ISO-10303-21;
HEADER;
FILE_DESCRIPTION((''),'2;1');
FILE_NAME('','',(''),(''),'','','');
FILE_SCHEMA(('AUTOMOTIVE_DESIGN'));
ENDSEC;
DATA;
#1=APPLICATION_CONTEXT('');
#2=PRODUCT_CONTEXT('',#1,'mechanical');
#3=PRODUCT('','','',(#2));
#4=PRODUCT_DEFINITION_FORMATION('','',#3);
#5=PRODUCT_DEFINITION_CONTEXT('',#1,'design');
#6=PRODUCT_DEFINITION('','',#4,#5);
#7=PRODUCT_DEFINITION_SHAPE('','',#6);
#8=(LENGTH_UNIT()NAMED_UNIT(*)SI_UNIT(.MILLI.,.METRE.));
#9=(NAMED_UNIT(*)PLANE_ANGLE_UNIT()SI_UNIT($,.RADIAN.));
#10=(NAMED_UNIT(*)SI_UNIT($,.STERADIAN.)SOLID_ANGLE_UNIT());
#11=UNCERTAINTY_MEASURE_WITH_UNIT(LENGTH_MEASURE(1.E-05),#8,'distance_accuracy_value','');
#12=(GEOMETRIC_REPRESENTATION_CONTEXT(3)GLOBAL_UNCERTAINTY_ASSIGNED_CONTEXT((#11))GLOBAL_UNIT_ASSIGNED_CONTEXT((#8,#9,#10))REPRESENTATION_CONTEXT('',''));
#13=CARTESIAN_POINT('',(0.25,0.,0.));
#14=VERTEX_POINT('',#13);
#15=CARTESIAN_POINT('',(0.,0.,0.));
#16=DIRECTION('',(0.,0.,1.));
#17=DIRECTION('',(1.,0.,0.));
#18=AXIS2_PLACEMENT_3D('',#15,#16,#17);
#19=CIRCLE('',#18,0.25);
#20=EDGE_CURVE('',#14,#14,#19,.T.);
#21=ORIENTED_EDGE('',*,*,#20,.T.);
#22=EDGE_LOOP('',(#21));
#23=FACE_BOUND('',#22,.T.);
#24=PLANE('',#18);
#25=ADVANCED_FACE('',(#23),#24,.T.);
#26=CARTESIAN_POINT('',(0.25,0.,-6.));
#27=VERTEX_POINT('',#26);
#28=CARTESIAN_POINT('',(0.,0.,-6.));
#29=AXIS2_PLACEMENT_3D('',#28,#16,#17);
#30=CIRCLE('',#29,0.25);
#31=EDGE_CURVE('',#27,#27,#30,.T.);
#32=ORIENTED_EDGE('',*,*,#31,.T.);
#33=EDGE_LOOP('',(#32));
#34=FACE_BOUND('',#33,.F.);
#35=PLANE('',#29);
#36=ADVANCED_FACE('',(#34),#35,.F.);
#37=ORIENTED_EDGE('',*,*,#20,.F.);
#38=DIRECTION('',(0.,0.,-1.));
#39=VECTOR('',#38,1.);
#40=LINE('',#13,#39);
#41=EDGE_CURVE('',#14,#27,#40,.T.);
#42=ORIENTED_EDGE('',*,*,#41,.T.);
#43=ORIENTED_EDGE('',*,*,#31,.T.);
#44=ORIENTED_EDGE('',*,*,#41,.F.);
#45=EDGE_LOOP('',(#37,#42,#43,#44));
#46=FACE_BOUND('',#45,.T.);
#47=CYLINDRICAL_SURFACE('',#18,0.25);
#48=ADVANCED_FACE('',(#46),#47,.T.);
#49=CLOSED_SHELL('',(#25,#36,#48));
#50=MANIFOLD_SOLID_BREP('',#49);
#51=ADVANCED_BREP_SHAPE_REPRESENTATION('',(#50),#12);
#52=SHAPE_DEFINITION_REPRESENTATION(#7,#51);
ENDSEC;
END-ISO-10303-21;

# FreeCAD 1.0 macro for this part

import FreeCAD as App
import Part
import Sketcher
from FreeCAD import Vector
Q = App.Units.Quantity

doc = App.newDocument("Part")
body = doc.addObject("PartDesign::Body", "Body")

# Sketch on XY plane
sketch1 = body.newObject("Sketcher::SketchObject", "Sketch")
sketch1.AttachmentSupport = (doc.getObject("XY_Plane"), [""])
sketch1.MapMode = "FlatFace"
sketch1.addGeometry(Part.Circle(Vector(0, 0, 0), Vector(0, 0, 1), 0.25), False)
sketch1.addConstraint(Sketcher.Constraint("Coincident", 0, 3, -1, 1))
sketch1.addConstraint(Sketcher.Constraint("Diameter", 0, Q("0.5 mm")))
pad1 = body.newObject("PartDesign::Pad", "Pad")
pad1.Profile = sketch1
pad1.Length = 6
pad1.Reversed = True

doc.recompute()
